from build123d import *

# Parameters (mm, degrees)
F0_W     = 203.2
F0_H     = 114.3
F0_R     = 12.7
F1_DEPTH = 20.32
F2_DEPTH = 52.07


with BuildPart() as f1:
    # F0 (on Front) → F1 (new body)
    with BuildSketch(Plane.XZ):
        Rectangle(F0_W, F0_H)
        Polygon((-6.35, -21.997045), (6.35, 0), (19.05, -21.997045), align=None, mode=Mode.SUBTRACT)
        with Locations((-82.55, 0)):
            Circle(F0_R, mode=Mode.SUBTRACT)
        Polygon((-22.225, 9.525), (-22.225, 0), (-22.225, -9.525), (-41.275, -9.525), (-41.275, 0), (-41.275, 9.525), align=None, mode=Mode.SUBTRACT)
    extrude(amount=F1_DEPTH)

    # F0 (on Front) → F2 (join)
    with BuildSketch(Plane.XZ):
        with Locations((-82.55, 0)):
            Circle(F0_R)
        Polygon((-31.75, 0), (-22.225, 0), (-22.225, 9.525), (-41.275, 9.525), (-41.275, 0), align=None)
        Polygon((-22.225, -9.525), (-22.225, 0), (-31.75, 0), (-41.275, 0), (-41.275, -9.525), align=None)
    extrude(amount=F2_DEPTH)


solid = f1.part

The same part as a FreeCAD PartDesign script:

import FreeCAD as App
import Part
import Sketcher
Q = App.Units.Quantity


def add_polygon(sketch, points):
    """Adds a closed chain of lines whose ends are joined by coincident constraints."""
    first, n = sketch.GeometryCount, len(points)
    for a, b in zip(points, points[1:] + points[:1]):
        sketch.addGeometry(Part.LineSegment(App.Vector(*a, 0), App.Vector(*b, 0)), False)
    for i in range(n):
        sketch.addConstraint(Sketcher.Constraint("Coincident", first + i, 2, first + (i + 1) % n, 1))

doc = App.newDocument("Part")
body = doc.addObject("PartDesign::Body", "Body")

sketch1 = body.newObject("Sketcher::SketchObject", "Sketch")
sketch1.AttachmentSupport = (doc.getObject("XZ_Plane"), [""])
sketch1.MapMode = "FlatFace"
add_polygon(sketch1, [(-102, 57), (-102, -57), (102, -57), (102, 57)])
add_polygon(sketch1, [(19, -22), (-6, -22), (6, 0)])
sketch1.addGeometry(Part.Circle(App.Vector(-83, 0, 0), App.Vector(0, 0, 1), 13), False)
add_polygon(sketch1, [(-41, 10), (-22, 10), (-22, -10), (-41, -10)])
sketch1.addConstraint(Sketcher.Constraint("Vertical", 0))
sketch1.addConstraint(Sketcher.Constraint("Horizontal", 1))
sketch1.addConstraint(Sketcher.Constraint("Vertical", 2))
sketch1.addConstraint(Sketcher.Constraint("Horizontal", 3))
sketch1.addConstraint(Sketcher.Constraint("Horizontal", 4))
sketch1.addConstraint(Sketcher.Constraint("Horizontal", 8))
sketch1.addConstraint(Sketcher.Constraint("Vertical", 9))
sketch1.addConstraint(Sketcher.Constraint("Horizontal", 10))
sketch1.addConstraint(Sketcher.Constraint("Vertical", 11))
sketch1.addConstraint(Sketcher.Constraint("Symmetric", 0, 2, 2, 2, -1, 1))
sketch1.addConstraint(Sketcher.Constraint("PointOnObject", 7, 3, -1))
sketch1.addConstraint(Sketcher.Constraint("PointOnObject", 5, 2, -1))
sketch1.addConstraint(Sketcher.Constraint("Equal", 10, 9))
sketch1.addConstraint(Sketcher.Constraint("Equal", 5, 6))
sketch1.addConstraint(Sketcher.Constraint("Diameter", 7, Q("1 in")))
sketch1.addConstraint(Sketcher.Constraint("DistanceX", 1, 1, 1, 2, Q("8 in")))
sketch1.addConstraint(Sketcher.Constraint("DistanceX", 4, 2, 4, 1, Q("1 in")))
sketch1.addConstraint(Sketcher.Constraint("Distance", 5, Q("1 in")))
sketch1.addConstraint(Sketcher.Constraint("DistanceY", 0, 2, 0, 1, Q("4.5 in")))
sketch1.addConstraint(Sketcher.Constraint("DistanceX", 7, 3, 4, 2, Q("3 in")))
sketch1.addConstraint(Sketcher.Constraint("DistanceX", 8, 1, 8, 2, Q("0.75 in")))
sketch1.addConstraint(Sketcher.Constraint("DistanceX", 7, 3, -1, 1, Q("3.25 in")))
sketch1.addConstraint(Sketcher.Constraint("DistanceX", 8, 2, -1, 1, Q("0.875 in")))
sketch1.addConstraint(Sketcher.Constraint("DistanceY", -1, 1, 8, 2, Q("0.375 in")))
pad1 = body.newObject("PartDesign::Pad", "Pad")
pad1.Profile = sketch1
pad1.Length = Q("0.8 in")

sketch2 = body.newObject("Sketcher::SketchObject", "Sketch001")
sketch2.AttachmentSupport = (doc.getObject("XZ_Plane"), [""])
sketch2.MapMode = "FlatFace"
sketch2.addGeometry(Part.Circle(App.Vector(-83, 0, 0), App.Vector(0, 0, 1), 13), False)
add_polygon(sketch2, [(-22, 10), (-41, 10), (-41, -10), (-22, -10)])
sketch2.addConstraint(Sketcher.Constraint("Horizontal", 1))
sketch2.addConstraint(Sketcher.Constraint("Vertical", 2))
sketch2.addConstraint(Sketcher.Constraint("Horizontal", 3))
sketch2.addConstraint(Sketcher.Constraint("Vertical", 4))
sketch2.addConstraint(Sketcher.Constraint("PointOnObject", 0, 3, -1))
sketch2.addConstraint(Sketcher.Constraint("Equal", 3, 2))
sketch2.addConstraint(Sketcher.Constraint("Diameter", 0, Q("1 in")))
sketch2.addConstraint(Sketcher.Constraint("DistanceX", 1, 2, 1, 1, Q("0.75 in")))
sketch2.addConstraint(Sketcher.Constraint("DistanceX", 0, 3, -1, 1, Q("3.25 in")))
sketch2.addConstraint(Sketcher.Constraint("DistanceX", 1, 2, -1, 1, Q("1.625 in")))
sketch2.addConstraint(Sketcher.Constraint("DistanceY", -1, 1, 1, 2, Q("0.375 in")))
pad2 = body.newObject("PartDesign::Pad", "Pad001")
pad2.Profile = sketch2
pad2.Length = Q("2.05 in")

doc.recompute()
